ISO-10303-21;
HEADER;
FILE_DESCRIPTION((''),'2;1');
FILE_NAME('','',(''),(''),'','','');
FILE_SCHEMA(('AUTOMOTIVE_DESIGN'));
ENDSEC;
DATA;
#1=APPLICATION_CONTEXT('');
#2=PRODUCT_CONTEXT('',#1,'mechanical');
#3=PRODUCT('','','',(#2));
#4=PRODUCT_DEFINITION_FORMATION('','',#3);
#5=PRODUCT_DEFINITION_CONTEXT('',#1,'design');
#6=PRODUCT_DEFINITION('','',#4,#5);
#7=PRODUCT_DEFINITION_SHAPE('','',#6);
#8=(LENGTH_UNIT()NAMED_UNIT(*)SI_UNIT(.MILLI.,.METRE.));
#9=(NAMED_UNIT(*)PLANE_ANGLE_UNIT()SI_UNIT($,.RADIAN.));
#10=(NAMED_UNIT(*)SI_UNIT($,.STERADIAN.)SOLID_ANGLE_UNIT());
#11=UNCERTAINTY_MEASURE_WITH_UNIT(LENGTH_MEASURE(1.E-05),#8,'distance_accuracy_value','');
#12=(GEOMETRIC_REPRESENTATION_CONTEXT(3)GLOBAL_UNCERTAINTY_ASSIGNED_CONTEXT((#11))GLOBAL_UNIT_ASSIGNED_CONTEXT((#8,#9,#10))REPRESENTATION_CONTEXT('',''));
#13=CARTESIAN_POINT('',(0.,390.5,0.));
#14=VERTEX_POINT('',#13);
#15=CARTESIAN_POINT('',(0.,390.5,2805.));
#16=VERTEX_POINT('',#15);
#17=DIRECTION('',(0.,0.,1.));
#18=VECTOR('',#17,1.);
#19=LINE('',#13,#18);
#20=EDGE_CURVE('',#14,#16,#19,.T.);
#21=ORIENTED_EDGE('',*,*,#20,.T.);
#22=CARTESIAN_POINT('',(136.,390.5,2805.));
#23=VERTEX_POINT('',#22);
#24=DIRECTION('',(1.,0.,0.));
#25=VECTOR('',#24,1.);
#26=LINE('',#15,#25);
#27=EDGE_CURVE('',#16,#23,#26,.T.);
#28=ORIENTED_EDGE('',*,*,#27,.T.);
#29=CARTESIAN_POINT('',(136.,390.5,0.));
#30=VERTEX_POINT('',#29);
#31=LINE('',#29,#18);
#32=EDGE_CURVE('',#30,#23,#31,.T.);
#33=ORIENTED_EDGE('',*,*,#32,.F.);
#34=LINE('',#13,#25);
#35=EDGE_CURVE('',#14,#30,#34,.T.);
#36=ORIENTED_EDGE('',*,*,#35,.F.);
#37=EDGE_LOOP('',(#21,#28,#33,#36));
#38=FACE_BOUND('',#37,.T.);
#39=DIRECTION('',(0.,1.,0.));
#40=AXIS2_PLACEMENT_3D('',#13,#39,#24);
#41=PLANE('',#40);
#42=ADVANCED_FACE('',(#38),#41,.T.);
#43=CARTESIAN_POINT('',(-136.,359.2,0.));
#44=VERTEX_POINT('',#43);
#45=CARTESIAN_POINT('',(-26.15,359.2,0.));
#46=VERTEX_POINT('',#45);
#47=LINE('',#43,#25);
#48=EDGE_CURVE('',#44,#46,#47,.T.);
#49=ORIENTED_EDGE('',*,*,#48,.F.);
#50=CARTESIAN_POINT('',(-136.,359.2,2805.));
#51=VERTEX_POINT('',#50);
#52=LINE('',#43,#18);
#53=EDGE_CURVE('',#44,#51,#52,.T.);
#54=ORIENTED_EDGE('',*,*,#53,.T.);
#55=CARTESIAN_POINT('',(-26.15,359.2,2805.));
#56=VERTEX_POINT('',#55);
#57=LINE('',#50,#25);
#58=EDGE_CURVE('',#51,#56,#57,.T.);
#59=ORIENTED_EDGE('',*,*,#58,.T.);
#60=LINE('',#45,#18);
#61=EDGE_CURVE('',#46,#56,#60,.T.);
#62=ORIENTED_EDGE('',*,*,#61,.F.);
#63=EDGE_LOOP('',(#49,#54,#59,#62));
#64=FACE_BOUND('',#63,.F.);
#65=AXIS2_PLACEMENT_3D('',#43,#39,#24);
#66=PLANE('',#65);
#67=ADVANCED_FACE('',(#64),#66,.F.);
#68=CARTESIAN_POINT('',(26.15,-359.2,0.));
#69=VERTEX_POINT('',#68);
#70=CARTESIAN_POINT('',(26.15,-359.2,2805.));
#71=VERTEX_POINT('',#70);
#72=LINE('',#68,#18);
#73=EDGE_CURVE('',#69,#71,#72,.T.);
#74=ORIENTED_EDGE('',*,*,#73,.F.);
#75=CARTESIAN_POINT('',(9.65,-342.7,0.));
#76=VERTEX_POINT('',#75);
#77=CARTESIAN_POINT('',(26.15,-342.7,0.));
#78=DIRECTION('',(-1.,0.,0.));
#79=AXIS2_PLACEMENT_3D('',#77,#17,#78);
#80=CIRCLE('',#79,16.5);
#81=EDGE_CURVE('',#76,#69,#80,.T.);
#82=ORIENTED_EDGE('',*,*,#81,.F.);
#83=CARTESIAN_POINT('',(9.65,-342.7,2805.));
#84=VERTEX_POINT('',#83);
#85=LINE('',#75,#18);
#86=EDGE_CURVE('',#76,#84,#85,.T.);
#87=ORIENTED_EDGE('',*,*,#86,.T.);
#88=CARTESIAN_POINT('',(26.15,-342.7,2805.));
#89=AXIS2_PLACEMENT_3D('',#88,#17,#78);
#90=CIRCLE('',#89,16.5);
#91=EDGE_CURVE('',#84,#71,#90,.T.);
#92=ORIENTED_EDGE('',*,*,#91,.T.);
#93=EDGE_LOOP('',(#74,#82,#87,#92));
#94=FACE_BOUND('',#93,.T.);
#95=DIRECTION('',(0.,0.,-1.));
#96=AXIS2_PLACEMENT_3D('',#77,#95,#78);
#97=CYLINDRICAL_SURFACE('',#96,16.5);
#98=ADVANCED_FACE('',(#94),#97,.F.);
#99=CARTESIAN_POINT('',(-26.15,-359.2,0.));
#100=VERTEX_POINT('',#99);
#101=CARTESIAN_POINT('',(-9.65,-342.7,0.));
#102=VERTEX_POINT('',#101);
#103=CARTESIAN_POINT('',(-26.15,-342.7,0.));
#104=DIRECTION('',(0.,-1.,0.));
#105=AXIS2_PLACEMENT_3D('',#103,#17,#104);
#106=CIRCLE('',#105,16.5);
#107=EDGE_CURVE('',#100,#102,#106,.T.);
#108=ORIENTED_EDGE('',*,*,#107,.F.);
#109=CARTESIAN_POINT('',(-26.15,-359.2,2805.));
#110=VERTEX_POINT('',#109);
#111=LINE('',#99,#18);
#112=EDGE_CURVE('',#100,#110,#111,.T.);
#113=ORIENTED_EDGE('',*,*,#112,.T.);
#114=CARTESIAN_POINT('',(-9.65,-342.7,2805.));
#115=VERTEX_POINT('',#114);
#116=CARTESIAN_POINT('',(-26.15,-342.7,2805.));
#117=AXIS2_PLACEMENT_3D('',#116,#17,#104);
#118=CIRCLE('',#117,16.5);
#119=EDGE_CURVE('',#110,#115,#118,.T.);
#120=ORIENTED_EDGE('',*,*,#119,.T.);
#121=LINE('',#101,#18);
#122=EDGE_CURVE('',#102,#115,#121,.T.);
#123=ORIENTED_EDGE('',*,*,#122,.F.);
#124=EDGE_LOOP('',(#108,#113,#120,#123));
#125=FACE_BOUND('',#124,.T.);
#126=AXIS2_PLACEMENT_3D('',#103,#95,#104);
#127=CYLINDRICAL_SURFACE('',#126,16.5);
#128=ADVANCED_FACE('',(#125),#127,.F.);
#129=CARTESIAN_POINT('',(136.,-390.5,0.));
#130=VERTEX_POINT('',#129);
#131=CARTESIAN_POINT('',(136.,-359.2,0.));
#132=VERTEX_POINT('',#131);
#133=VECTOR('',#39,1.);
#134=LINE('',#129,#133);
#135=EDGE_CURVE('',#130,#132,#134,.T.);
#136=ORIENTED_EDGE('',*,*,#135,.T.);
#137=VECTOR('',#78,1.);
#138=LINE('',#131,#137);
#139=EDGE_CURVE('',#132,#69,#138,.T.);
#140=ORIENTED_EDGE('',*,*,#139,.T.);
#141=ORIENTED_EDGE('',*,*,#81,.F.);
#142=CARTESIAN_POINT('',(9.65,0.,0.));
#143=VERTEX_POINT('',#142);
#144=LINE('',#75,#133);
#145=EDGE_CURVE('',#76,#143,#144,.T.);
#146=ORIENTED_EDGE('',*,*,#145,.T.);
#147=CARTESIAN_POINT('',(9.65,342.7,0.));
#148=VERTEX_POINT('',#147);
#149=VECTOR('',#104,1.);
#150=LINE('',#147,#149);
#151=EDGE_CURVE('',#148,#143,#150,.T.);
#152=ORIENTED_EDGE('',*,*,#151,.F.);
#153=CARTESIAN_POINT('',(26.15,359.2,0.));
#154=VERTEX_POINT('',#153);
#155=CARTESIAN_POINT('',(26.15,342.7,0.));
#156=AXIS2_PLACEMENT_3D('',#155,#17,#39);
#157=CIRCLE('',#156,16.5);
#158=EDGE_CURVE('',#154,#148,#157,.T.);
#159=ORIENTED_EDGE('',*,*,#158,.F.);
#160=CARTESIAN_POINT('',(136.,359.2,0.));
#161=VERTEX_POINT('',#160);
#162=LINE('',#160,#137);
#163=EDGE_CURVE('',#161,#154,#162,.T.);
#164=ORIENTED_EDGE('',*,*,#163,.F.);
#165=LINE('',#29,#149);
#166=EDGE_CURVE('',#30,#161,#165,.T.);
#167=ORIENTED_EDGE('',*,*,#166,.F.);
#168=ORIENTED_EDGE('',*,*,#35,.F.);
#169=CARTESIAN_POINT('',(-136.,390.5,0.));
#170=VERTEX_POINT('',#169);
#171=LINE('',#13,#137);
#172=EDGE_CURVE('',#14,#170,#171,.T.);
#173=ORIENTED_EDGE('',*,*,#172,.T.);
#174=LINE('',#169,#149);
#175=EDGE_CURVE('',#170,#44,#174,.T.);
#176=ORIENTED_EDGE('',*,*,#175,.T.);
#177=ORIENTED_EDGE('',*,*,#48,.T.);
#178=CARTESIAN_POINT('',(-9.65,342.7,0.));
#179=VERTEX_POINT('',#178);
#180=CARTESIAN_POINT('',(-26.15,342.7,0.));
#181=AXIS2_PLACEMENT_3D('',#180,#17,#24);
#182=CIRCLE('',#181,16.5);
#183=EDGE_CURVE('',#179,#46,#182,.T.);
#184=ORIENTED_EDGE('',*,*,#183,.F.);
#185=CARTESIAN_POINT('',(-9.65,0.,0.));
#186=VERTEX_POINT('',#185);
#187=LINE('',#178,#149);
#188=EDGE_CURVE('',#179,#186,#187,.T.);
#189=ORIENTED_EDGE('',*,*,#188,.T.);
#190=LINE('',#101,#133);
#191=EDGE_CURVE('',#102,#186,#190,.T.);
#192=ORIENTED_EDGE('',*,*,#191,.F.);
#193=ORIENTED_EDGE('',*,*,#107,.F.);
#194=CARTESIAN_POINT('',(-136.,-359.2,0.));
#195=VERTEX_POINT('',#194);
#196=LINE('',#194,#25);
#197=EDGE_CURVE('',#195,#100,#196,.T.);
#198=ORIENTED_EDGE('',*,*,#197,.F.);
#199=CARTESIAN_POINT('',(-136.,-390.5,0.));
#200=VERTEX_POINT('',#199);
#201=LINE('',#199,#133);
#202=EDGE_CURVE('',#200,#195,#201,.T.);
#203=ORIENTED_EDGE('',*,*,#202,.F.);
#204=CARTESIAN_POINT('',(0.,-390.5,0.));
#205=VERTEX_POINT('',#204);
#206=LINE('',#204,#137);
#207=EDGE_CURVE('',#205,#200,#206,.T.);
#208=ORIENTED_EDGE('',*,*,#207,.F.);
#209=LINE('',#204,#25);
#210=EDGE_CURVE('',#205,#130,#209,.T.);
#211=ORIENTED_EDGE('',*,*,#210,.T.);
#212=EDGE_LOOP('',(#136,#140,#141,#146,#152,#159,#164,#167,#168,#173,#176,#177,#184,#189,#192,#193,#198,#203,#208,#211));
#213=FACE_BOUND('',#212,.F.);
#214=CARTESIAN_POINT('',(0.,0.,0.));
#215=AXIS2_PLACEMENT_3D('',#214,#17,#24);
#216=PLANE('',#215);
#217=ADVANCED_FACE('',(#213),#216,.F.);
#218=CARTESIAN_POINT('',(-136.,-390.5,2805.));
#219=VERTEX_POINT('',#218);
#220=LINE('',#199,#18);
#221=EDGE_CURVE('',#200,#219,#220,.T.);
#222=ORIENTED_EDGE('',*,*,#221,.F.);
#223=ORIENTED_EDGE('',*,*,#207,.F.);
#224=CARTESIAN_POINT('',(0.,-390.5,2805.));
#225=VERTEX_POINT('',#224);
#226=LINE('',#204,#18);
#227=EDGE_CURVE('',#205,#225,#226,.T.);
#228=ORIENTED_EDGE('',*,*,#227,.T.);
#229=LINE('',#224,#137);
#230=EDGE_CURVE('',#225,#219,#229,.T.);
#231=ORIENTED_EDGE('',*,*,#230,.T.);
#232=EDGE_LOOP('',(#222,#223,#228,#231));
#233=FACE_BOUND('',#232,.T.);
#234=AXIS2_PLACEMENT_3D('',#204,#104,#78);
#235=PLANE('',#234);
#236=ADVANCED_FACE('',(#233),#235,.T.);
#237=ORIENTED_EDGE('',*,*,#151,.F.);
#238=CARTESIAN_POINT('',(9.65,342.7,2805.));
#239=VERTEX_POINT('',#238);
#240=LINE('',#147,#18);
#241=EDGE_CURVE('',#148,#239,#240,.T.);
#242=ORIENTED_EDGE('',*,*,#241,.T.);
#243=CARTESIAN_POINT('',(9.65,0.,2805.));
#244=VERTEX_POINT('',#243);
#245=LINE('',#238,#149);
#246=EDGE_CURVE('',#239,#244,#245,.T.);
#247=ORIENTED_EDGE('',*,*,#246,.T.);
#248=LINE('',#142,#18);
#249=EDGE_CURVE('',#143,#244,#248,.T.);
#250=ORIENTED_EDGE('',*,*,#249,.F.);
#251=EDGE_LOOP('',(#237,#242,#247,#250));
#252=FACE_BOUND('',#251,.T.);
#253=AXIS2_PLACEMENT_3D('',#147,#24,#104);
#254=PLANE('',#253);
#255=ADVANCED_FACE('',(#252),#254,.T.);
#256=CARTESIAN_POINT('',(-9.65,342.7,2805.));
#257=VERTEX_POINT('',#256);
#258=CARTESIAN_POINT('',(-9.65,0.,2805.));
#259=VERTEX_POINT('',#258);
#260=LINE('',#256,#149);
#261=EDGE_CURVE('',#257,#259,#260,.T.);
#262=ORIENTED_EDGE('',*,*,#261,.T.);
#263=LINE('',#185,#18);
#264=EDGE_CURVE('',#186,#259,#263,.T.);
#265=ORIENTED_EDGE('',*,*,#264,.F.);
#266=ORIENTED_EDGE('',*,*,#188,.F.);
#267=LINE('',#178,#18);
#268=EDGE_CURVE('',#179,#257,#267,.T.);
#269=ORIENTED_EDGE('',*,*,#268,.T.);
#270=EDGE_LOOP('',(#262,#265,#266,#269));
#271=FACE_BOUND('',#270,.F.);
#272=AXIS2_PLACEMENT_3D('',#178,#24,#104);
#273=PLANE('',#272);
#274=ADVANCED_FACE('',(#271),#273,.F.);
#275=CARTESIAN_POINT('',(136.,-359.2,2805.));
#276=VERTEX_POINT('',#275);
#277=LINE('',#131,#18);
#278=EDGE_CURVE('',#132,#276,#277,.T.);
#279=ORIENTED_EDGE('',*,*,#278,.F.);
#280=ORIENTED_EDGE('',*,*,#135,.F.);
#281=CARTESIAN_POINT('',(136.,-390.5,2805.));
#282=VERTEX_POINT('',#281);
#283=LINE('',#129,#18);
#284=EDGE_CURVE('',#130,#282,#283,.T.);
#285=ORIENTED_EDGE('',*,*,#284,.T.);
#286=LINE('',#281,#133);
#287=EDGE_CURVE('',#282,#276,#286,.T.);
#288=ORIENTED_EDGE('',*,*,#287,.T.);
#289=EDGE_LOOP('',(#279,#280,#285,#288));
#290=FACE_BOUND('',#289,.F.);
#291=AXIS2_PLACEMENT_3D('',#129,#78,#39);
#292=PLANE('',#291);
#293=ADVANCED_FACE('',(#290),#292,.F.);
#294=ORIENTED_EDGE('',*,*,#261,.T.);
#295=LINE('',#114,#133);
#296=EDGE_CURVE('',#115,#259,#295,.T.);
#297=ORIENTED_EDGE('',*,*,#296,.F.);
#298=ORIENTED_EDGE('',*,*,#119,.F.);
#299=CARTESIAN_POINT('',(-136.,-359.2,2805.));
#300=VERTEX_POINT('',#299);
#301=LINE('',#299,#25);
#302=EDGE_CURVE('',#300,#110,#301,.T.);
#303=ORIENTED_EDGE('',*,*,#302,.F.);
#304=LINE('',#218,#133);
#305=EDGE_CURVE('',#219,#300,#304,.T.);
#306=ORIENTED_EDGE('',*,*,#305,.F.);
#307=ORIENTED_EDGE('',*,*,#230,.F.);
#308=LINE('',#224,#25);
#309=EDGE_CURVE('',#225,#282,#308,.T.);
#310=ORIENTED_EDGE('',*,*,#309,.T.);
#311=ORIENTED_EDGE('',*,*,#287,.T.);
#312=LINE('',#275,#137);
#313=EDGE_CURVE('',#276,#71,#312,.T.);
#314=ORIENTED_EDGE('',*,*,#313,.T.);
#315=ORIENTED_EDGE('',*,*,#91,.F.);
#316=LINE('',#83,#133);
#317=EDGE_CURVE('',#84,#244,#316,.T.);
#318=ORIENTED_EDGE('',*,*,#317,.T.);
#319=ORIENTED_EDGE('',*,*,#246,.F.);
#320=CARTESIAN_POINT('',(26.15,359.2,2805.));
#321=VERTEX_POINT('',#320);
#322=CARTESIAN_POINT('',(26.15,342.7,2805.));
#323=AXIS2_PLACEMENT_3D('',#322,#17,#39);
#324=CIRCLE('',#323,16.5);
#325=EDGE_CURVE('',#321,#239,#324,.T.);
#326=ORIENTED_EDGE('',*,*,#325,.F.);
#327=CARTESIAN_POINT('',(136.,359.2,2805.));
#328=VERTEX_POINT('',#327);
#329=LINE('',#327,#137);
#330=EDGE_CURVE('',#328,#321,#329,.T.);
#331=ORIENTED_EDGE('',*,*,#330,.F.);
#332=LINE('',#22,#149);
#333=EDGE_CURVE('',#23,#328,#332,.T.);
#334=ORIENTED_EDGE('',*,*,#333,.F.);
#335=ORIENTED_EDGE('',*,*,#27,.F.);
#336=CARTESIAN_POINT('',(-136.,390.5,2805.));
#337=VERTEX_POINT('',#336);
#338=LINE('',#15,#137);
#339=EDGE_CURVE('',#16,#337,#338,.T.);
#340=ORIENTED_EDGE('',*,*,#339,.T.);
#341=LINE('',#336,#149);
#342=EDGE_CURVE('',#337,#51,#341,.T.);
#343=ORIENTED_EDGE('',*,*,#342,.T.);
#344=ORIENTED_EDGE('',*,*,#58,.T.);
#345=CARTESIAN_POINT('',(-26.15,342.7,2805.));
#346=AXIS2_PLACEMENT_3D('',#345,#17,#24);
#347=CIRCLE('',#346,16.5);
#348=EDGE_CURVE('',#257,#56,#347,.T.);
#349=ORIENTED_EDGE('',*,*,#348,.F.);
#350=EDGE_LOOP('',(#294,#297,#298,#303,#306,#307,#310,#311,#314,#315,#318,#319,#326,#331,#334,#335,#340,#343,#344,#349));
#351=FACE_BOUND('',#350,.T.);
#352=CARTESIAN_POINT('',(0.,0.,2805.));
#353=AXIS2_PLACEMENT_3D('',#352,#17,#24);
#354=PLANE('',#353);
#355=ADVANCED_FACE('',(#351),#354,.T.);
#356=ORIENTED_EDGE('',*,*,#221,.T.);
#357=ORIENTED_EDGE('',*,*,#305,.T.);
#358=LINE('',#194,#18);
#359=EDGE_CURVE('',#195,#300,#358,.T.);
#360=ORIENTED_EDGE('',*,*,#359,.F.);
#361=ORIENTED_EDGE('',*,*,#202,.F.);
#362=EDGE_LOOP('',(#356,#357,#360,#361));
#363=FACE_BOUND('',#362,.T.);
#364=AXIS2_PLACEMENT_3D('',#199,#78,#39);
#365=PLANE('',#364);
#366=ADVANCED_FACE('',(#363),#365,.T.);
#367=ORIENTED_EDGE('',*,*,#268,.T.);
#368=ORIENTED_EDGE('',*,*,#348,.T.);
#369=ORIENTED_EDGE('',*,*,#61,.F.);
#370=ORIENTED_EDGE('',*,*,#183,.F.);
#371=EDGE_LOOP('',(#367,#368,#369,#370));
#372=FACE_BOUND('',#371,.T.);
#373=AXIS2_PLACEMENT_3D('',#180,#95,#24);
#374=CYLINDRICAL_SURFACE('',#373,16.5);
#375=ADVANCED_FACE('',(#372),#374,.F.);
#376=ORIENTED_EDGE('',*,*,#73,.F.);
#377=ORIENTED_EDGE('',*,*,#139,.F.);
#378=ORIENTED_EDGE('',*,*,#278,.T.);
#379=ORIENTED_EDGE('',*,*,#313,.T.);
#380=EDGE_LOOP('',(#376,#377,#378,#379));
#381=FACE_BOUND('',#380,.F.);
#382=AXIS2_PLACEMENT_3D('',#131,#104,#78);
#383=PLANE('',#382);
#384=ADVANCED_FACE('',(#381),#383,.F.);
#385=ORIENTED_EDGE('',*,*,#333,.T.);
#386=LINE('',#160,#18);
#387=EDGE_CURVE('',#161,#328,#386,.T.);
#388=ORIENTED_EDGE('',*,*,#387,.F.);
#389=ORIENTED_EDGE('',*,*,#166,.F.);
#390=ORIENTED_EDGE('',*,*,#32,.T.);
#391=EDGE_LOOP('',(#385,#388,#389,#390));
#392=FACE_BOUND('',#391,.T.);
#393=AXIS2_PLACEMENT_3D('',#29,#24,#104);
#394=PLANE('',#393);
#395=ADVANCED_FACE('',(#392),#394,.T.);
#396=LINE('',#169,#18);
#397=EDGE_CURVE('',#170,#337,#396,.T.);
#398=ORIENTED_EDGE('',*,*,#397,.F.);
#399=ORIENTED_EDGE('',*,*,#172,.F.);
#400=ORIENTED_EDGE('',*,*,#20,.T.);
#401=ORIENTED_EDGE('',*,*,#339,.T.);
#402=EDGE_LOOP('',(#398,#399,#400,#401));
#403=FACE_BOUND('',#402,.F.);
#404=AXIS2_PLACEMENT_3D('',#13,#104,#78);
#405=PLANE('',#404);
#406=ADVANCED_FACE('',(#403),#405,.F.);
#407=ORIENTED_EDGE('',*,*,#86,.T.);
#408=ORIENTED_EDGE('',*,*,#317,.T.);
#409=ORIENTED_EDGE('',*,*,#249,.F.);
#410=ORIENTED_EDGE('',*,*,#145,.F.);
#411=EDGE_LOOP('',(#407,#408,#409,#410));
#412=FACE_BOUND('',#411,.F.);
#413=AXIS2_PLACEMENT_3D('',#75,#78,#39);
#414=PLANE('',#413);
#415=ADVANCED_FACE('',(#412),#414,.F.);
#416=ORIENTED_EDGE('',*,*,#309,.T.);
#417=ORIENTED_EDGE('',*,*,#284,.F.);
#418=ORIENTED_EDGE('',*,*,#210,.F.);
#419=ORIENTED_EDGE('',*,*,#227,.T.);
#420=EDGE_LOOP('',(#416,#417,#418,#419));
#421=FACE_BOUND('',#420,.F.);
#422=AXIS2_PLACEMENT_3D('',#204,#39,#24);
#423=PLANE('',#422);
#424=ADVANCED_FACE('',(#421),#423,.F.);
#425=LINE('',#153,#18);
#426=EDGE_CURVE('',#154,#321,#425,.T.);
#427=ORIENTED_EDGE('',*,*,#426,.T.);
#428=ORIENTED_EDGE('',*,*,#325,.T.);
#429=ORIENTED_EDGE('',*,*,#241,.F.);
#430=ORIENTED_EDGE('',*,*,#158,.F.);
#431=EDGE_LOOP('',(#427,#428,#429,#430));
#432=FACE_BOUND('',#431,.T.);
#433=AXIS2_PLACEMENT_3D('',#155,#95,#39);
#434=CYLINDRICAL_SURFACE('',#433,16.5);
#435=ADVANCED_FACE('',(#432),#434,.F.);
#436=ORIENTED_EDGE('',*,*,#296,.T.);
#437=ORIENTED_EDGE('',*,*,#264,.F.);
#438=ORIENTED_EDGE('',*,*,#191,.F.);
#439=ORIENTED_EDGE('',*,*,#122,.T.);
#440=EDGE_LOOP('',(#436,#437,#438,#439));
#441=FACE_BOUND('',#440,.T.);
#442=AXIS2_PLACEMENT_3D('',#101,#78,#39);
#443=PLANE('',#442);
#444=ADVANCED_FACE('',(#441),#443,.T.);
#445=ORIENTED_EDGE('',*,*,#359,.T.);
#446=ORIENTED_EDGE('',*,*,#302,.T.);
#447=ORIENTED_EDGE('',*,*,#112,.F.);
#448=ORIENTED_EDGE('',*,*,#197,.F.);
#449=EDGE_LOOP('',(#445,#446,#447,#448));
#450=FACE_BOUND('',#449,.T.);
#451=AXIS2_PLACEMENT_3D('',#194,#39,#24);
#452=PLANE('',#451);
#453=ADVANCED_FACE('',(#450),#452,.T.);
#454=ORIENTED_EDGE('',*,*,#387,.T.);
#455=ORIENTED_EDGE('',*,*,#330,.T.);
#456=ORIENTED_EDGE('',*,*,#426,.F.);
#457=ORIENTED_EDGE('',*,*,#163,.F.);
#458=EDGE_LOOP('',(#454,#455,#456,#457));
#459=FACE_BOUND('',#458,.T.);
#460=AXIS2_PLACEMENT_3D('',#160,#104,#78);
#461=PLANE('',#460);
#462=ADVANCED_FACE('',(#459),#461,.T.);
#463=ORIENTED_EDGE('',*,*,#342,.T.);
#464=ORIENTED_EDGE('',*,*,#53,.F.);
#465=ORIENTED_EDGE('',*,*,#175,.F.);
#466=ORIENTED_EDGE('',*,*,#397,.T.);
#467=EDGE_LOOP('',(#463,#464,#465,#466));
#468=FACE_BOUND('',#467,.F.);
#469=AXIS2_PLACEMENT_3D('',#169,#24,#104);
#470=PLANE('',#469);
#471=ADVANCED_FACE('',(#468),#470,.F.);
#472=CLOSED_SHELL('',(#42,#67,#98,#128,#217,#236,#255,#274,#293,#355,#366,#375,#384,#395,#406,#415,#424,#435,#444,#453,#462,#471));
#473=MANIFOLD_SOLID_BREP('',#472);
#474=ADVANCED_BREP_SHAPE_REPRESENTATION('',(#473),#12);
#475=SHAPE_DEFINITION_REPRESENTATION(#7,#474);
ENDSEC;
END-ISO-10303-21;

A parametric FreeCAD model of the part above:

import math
import FreeCAD as App
import Part
import Sketcher

V = App.Vector
Q = App.Units.Quantity

doc = App.newDocument("Part")
body = doc.addObject("PartDesign::Body", "Body")

# Sketch on XY plane
sketch1 = doc.addObject("Sketcher::SketchObject", "Sketch")
body.addObject(sketch1)
sketch1.AttachmentSupport = (doc.XY_Plane, [""])
sketch1.MapMode = "FlatFace"
sketch1.addGeometry(Part.LineSegment(V(-136, -359, 0), V(-136, -390, 0)), False)
sketch1.addGeometry(Part.LineSegment(V(-136, -390, 0), V(136, -390, 0)), False)
sketch1.addGeometry(Part.LineSegment(V(136, -390, 0), V(136, -359, 0)), False)
sketch1.addGeometry(Part.LineSegment(V(136, -359, 0), V(26, -359, 0)), False)
sketch1.addGeometry(Part.ArcOfCircle(Part.Circle(V(26, -343, 0), V(0, 0, 1), 16), math.radians(180), math.radians(270)), False)
sketch1.addGeometry(Part.LineSegment(V(10, -343, 0), V(10, 343, 0)), False)
sketch1.addGeometry(Part.ArcOfCircle(Part.Circle(V(26, 343, 0), V(0, 0, 1), 16), math.radians(90), math.radians(180)), False)
sketch1.addGeometry(Part.LineSegment(V(26, 359, 0), V(136, 359, 0)), False)
sketch1.addGeometry(Part.LineSegment(V(136, 359, 0), V(136, 390, 0)), False)
sketch1.addGeometry(Part.LineSegment(V(136, 390, 0), V(-136, 390, 0)), False)
sketch1.addGeometry(Part.LineSegment(V(-136, 390, 0), V(-136, 359, 0)), False)
sketch1.addGeometry(Part.LineSegment(V(-136, 359, 0), V(-26, 359, 0)), False)
sketch1.addGeometry(Part.ArcOfCircle(Part.Circle(V(-26, 343, 0), V(0, 0, 1), 16), math.radians(0), math.radians(90)), False)
sketch1.addGeometry(Part.LineSegment(V(-10, 343, 0), V(-10, -343, 0)), False)
sketch1.addGeometry(Part.ArcOfCircle(Part.Circle(V(-26, -343, 0), V(0, 0, 1), 16), math.radians(-90), math.radians(0)), False)
sketch1.addGeometry(Part.LineSegment(V(-26, -359, 0), V(-136, -359, 0)), False)
sketch1.addConstraint(Sketcher.Constraint("Coincident", 0, 2, 1, 1))
sketch1.addConstraint(Sketcher.Constraint("Coincident", 1, 2, 2, 1))
sketch1.addConstraint(Sketcher.Constraint("Coincident", 2, 2, 3, 1))
sketch1.addConstraint(Sketcher.Constraint("Tangent", 3, 2, 4, 2))
sketch1.addConstraint(Sketcher.Constraint("Tangent", 4, 1, 5, 1))
sketch1.addConstraint(Sketcher.Constraint("Tangent", 5, 2, 6, 2))
sketch1.addConstraint(Sketcher.Constraint("Tangent", 6, 1, 7, 1))
sketch1.addConstraint(Sketcher.Constraint("Coincident", 7, 2, 8, 1))
sketch1.addConstraint(Sketcher.Constraint("Coincident", 8, 2, 9, 1))
sketch1.addConstraint(Sketcher.Constraint("Coincident", 9, 2, 10, 1))
sketch1.addConstraint(Sketcher.Constraint("Coincident", 10, 2, 11, 1))
sketch1.addConstraint(Sketcher.Constraint("Tangent", 11, 2, 12, 2))
sketch1.addConstraint(Sketcher.Constraint("Tangent", 12, 1, 13, 1))
sketch1.addConstraint(Sketcher.Constraint("Tangent", 13, 2, 14, 2))
sketch1.addConstraint(Sketcher.Constraint("Tangent", 14, 1, 15, 1))
sketch1.addConstraint(Sketcher.Constraint("Coincident", 15, 2, 0, 1))
sketch1.addConstraint(Sketcher.Constraint("Vertical", 0))
sketch1.addConstraint(Sketcher.Constraint("Horizontal", 1))
sketch1.addConstraint(Sketcher.Constraint("Vertical", 2))
sketch1.addConstraint(Sketcher.Constraint("Horizontal", 3))
sketch1.addConstraint(Sketcher.Constraint("Vertical", 5))
sketch1.addConstraint(Sketcher.Constraint("Horizontal", 7))
sketch1.addConstraint(Sketcher.Constraint("Vertical", 8))
sketch1.addConstraint(Sketcher.Constraint("Horizontal", 9))
sketch1.addConstraint(Sketcher.Constraint("Vertical", 10))
sketch1.addConstraint(Sketcher.Constraint("Horizontal", 11))
sketch1.addConstraint(Sketcher.Constraint("Vertical", 13))
sketch1.addConstraint(Sketcher.Constraint("Horizontal", 15))
sketch1.addConstraint(Sketcher.Constraint("Equal", 4, 6))
sketch1.addConstraint(Sketcher.Constraint("Equal", 6, 12))
sketch1.addConstraint(Sketcher.Constraint("Equal", 12, 14))
sketch1.addConstraint(Sketcher.Constraint("Symmetric", 4, 3, 12, 3, -1, 1))
sketch1.addConstraint(Sketcher.Constraint("Symmetric", 0, 2, 8, 2, -1, 1))
sketch1.addConstraint(Sketcher.Constraint("Symmetric", 7, 2, 10, 2, -2))
sketch1.addConstraint(Sketcher.Constraint("Symmetric", 2, 2, 15, 2, -2))
sketch1.addConstraint(Sketcher.Constraint("Radius", 4, Q("16.5 mm")))
sketch1.addConstraint(Sketcher.Constraint("DistanceY", 0, 2, 0, 1, Q("31.3 mm")))
sketch1.addConstraint(Sketcher.Constraint("DistanceX", 0, 2, -1, 1, Q("136 mm")))
sketch1.addConstraint(Sketcher.Constraint("DistanceY", 0, 2, -1, 1, Q("390.5 mm")))
sketch1.addConstraint(Sketcher.Constraint("DistanceX", -1, 1, 4, 1, Q("9.65 mm")))
pad1 = doc.addObject("PartDesign::Pad", "Pad")
body.addObject(pad1)
pad1.Profile = sketch1
pad1.Length = 2805

doc.recompute()
